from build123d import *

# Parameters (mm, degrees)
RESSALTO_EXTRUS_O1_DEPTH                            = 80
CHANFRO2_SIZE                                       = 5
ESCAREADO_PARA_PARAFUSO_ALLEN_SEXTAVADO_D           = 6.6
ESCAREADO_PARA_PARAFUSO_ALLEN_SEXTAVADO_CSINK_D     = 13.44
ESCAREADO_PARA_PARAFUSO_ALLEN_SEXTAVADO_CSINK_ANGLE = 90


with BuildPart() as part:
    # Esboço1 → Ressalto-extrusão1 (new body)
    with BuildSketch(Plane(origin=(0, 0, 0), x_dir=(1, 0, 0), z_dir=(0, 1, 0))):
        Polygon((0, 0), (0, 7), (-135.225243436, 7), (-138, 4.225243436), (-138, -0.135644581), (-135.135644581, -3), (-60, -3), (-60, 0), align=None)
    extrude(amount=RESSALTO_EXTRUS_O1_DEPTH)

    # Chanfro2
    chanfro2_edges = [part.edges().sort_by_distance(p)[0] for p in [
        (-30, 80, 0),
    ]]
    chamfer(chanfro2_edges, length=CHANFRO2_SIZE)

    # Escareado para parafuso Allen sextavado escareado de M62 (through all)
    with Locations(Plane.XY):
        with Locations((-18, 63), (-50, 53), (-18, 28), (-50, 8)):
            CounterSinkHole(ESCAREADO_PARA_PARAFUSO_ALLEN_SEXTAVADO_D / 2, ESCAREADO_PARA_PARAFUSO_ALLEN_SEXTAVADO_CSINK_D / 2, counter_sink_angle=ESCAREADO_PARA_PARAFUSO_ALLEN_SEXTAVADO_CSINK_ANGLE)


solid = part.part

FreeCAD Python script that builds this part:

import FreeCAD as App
import Part
import Sketcher
Q = App.Units.Quantity


def edges_at(feature, points):
    """Names of the edges that pass closest to the given points."""
    edges = feature.Shape.Edges
    near = lambda p: min(range(len(edges)), key=lambda i: edges[i].distToShape(Part.Vertex(*p))[0])
    return sorted({f"Edge{near(p) + 1}" for p in points})


def add_polygon(sketch, points):
    """Adds a closed chain of lines whose ends are joined by coincident constraints."""
    first, n = sketch.GeometryCount, len(points)
    for a, b in zip(points, points[1:] + points[:1]):
        sketch.addGeometry(Part.LineSegment(App.Vector(*a, 0), App.Vector(*b, 0)), False)
    for i in range(n):
        sketch.addConstraint(Sketcher.Constraint("Coincident", first + i, 2, first + (i + 1) % n, 1))

doc = App.newDocument("Part")
body = doc.addObject("PartDesign::Body", "Body")

# Sketch on XZ plane
sketch1 = body.newObject("Sketcher::SketchObject", "Sketch")
sketch1.AttachmentSupport = (doc.getObject("XZ_Plane"), [""])
sketch1.MapMode = "FlatFace"
add_polygon(sketch1, [(0, 0), (0, -7), (-135.2, -7), (-138, -4.2), (-138, 0.1), (-135.1, 3), (-60, 3), (-60, 0)])  # lines 0-7
sketch1.addConstraint([
    Sketcher.Constraint("Vertical", 0),
    Sketcher.Constraint("Horizontal", 1),
    Sketcher.Constraint("Vertical", 3),
    Sketcher.Constraint("Horizontal", 5),
    Sketcher.Constraint("Vertical", 6),
    Sketcher.Constraint("Horizontal", 7),
    Sketcher.Constraint("Coincident", 7, 2, -1, 1),
    Sketcher.Constraint("Perpendicular", 2, 4),
    Sketcher.Constraint("DistanceX", 7, 1, 7, 2, Q("60 mm")),
    Sketcher.Constraint("DistanceY", 0, 2, 0, 1, Q("7 mm")),
    Sketcher.Constraint("DistanceY", 6, 2, 6, 1, Q("3 mm")),
    Sketcher.Constraint("Angle", 2, Q("135 deg")),
    Sketcher.Constraint("DistanceX", 2, 2, -1, 1, Q("138 mm")),
    Sketcher.Constraint("Distance", 2, Q("3.924098 mm")),
    Sketcher.Constraint("DistanceY", 3, 1, 3, 2, Q("4.360888 mm")),
])
pad1 = body.newObject("PartDesign::Pad", "Pad")
pad1.Profile = sketch1
pad1.Length = 80
pad1.Reversed = True
doc.recompute()

chamfer = body.newObject("PartDesign::Chamfer", "Chamfer")
chamfer.Base = (pad1, edges_at(pad1, [(-30, 80, 0)]))
chamfer.Size = 5

# Sketch on XY plane
sketch2 = body.newObject("Sketcher::SketchObject", "Sketch001")
sketch2.AttachmentSupport = (doc.getObject("XY_Plane"), [""])
sketch2.MapMode = "FlatFace"
sketch2.addGeometry([
    Part.Circle(App.Vector(-18, 63, 0), App.Vector(0, 0, 1), 3.3),
    Part.Circle(App.Vector(-50, 53, 0), App.Vector(0, 0, 1), 3.3),
    Part.Circle(App.Vector(-18, 28, 0), App.Vector(0, 0, 1), 3.3),
    Part.Circle(App.Vector(-50, 8, 0), App.Vector(0, 0, 1), 3.3),
], False)
sketch2.addConstraint([
    Sketcher.Constraint("Equal", 0, 1),
    Sketcher.Constraint("Equal", 1, 2),
    Sketcher.Constraint("Equal", 2, 3),
    Sketcher.Constraint("Vertical", 0, 3, 2, 3),
    Sketcher.Constraint("Vertical", 1, 3, 3, 3),
    Sketcher.Constraint("Diameter", 0, Q("6.6 mm")),
    Sketcher.Constraint("DistanceX", 0, 3, -1, 1, Q("18 mm")),
    Sketcher.Constraint("DistanceY", -1, 1, 0, 3, Q("63 mm")),
    Sketcher.Constraint("DistanceX", 1, 3, -1, 1, Q("50 mm")),
    Sketcher.Constraint("DistanceY", -1, 1, 1, 3, Q("53 mm")),
    Sketcher.Constraint("DistanceY", -1, 1, 2, 3, Q("28 mm")),
    Sketcher.Constraint("DistanceY", -1, 1, 3, 3, Q("8 mm")),
])
doc.recompute()
hole = body.newObject("PartDesign::Hole", "Hole")
hole.Profile = sketch2
hole.ThreadType = "None"
hole.Diameter = 6.6
hole.DepthType = "ThroughAll"
hole.HoleCutType = "Countersink"
hole.HoleCutDiameter = 13.44
hole.HoleCutCountersinkAngle = 90

doc.recompute()
